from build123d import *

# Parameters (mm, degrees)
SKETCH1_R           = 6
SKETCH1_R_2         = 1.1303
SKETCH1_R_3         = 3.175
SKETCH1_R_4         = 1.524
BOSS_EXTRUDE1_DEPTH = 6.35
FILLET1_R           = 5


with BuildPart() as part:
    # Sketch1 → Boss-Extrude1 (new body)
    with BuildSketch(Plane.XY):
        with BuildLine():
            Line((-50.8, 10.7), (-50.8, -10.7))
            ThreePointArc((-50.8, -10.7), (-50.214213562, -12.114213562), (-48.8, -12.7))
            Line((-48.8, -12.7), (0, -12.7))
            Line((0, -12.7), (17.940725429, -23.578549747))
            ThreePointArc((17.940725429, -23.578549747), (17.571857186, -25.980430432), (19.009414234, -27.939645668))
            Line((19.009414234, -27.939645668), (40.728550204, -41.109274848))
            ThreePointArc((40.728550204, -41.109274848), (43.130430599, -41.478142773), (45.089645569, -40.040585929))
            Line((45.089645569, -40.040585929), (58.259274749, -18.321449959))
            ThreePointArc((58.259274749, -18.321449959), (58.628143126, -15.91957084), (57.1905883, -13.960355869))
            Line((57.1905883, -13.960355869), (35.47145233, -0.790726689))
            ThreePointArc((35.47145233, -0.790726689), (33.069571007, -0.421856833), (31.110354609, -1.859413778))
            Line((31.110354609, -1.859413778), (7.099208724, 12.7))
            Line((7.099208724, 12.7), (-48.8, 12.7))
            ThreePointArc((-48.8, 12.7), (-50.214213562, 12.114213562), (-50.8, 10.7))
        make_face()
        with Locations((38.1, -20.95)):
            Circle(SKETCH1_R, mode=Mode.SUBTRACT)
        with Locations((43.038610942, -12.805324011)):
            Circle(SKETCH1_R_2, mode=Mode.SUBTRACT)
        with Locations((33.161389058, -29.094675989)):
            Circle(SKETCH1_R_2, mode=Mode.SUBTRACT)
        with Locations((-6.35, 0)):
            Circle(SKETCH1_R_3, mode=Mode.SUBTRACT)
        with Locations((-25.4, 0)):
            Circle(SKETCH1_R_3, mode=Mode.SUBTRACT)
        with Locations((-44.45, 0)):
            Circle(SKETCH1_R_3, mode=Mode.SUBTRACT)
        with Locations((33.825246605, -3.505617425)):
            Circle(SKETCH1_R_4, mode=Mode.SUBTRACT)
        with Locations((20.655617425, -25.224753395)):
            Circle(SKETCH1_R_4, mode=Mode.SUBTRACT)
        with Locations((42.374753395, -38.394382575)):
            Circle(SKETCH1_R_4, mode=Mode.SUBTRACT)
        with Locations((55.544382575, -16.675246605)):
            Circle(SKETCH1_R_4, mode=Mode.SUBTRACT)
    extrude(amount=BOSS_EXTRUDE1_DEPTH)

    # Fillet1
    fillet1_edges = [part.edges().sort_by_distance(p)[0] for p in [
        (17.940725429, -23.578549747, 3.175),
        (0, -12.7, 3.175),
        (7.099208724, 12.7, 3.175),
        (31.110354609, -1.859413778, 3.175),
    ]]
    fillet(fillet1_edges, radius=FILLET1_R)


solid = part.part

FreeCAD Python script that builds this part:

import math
import FreeCAD as App
import Part
import Sketcher
Q = App.Units.Quantity


def edges_at(feature, points):
    """Names of the edges that pass closest to the given points."""
    edges = feature.Shape.Edges
    near = lambda p: min(range(len(edges)), key=lambda i: edges[i].distToShape(Part.Vertex(*p))[0])
    return sorted({f"Edge{near(p) + 1}" for p in points})

doc = App.newDocument("Part")
body = doc.addObject("PartDesign::Body", "Body")

sketch1 = body.newObject("Sketcher::SketchObject", "Sketch")
sketch1.AttachmentSupport = (doc.getObject("XY_Plane"), [""])
sketch1.MapMode = "FlatFace"
sketch1.addGeometry([
    Part.LineSegment(App.Vector(-50.8, 10.7, 0), App.Vector(-50.8, -10.7, 0)),
    Part.ArcOfCircle(Part.Circle(App.Vector(-48.8, -10.7, 0), App.Vector(0, 0, 1), 2), math.radians(-180), math.radians(-90)),
    Part.LineSegment(App.Vector(-48.8, -12.7, 0), App.Vector(0, -12.7, 0)),
    Part.LineSegment(App.Vector(0, -12.7, 0), App.Vector(17.9, -23.6, 0)),
    Part.ArcOfCircle(Part.Circle(App.Vector(20.7, -25.2, 0), App.Vector(0, 0, 1), 3.2), math.radians(149), math.radians(239)),
    Part.LineSegment(App.Vector(19, -27.9, 0), App.Vector(40.7, -41.1, 0)),
    Part.ArcOfCircle(Part.Circle(App.Vector(42.4, -38.4, 0), App.Vector(0, 0, 1), 3.2), math.radians(-121), math.radians(-31)),
    Part.LineSegment(App.Vector(45.1, -40, 0), App.Vector(58.3, -18.3, 0)),
    Part.ArcOfCircle(Part.Circle(App.Vector(55.5, -16.7, 0), App.Vector(0, 0, 1), 3.2), math.radians(-31), math.radians(59)),
    Part.LineSegment(App.Vector(57.2, -14, 0), App.Vector(35.5, -0.8, 0)),
    Part.ArcOfCircle(Part.Circle(App.Vector(33.8, -3.5, 0), App.Vector(0, 0, 1), 3.2), math.radians(59), math.radians(149)),
    Part.LineSegment(App.Vector(31.1, -1.9, 0), App.Vector(7.1, 12.7, 0)),
    Part.LineSegment(App.Vector(7.1, 12.7, 0), App.Vector(-48.8, 12.7, 0)),
    Part.ArcOfCircle(Part.Circle(App.Vector(-48.8, 10.7, 0), App.Vector(0, 0, 1), 2), math.radians(90), math.radians(180)),
    Part.Circle(App.Vector(42.4, -38.4, 0), App.Vector(0, 0, 1), 1.5),
    Part.Circle(App.Vector(20.7, -25.2, 0), App.Vector(0, 0, 1), 1.5),
    Part.Circle(App.Vector(33.2, -29.1, 0), App.Vector(0, 0, 1), 1.1),
    Part.Circle(App.Vector(38.1, -20.9, 0), App.Vector(0, 0, 1), 6),
    Part.Circle(App.Vector(-44.5, 0, 0), App.Vector(0, 0, 1), 3.2),
    Part.Circle(App.Vector(-25.4, 0, 0), App.Vector(0, 0, 1), 3.2),
    Part.Circle(App.Vector(-6.3, 0, 0), App.Vector(0, 0, 1), 3.2),
    Part.Circle(App.Vector(55.5, -16.7, 0), App.Vector(0, 0, 1), 1.5),
    Part.Circle(App.Vector(43, -12.8, 0), App.Vector(0, 0, 1), 1.1),
    Part.Circle(App.Vector(33.8, -3.5, 0), App.Vector(0, 0, 1), 1.5),
], False)
sketch1.addConstraint([
    Sketcher.Constraint("Tangent", 0, 2, 1, 1),
    Sketcher.Constraint("Tangent", 1, 2, 2, 1),
    Sketcher.Constraint("Coincident", 2, 2, 3, 1),
    Sketcher.Constraint("Coincident", 3, 2, 4, 1),
    Sketcher.Constraint("Tangent", 4, 2, 5, 1),
    Sketcher.Constraint("Tangent", 5, 2, 6, 1),
    Sketcher.Constraint("Tangent", 6, 2, 7, 1),
    Sketcher.Constraint("Tangent", 7, 2, 8, 1),
    Sketcher.Constraint("Tangent", 8, 2, 9, 1),
    Sketcher.Constraint("Tangent", 9, 2, 10, 1),
    Sketcher.Constraint("Coincident", 10, 2, 11, 1),
    Sketcher.Constraint("Coincident", 11, 2, 12, 1),
    Sketcher.Constraint("Tangent", 12, 2, 13, 1),
    Sketcher.Constraint("Tangent", 13, 2, 0, 1),
    Sketcher.Constraint("Vertical", 0),
    Sketcher.Constraint("Horizontal", 2),
    Sketcher.Constraint("Horizontal", 12),
    Sketcher.Constraint("Coincident", 14, 3, 6, 3),
    Sketcher.Constraint("Coincident", 15, 3, 4, 3),
    Sketcher.Constraint("Coincident", 21, 3, 8, 3),
    Sketcher.Constraint("Coincident", 23, 3, 10, 3),
    Sketcher.Constraint("Equal", 4, 6),
    Sketcher.Constraint("Equal", 6, 8),
    Sketcher.Constraint("Equal", 8, 10),
    Sketcher.Constraint("Equal", 1, 13),
    Sketcher.Constraint("Equal", 14, 15),
    Sketcher.Constraint("Equal", 10, 18),
    Sketcher.Constraint("Equal", 18, 19),
    Sketcher.Constraint("Equal", 19, 20),
    Sketcher.Constraint("Equal", 15, 21),
    Sketcher.Constraint("Equal", 16, 22),
    Sketcher.Constraint("Equal", 21, 23),
    Sketcher.Constraint("PointOnObject", 18, 3, -1),
    Sketcher.Constraint("PointOnObject", 19, 3, -1),
    Sketcher.Constraint("PointOnObject", 20, 3, -1),
    Sketcher.Constraint("PointOnObject", 2, 2, -2),
    Sketcher.Constraint("Parallel", 3, 5),
    Sketcher.Constraint("Perpendicular", 5, 7),
    Sketcher.Constraint("Perpendicular", 7, 9),
    Sketcher.Constraint("Parallel", 9, 11),
    Sketcher.Constraint("Equal", 5, 7),
    Sketcher.Constraint("Equal", 7, 9),
    Sketcher.Constraint("Diameter", 17, Q("12 mm")),
    Sketcher.Constraint("Radius", 1, Q("2 mm")),
    Sketcher.Constraint("Diameter", 18, Q("6.35 mm")),
    Sketcher.Constraint("Diameter", 14, Q("3.048 mm")),
    Sketcher.Constraint("DistanceX", 2, 1, 2, 2, Q("48.8 mm")),
    Sketcher.Constraint("DistanceY", 0, 2, 0, 1, Q("21.4 mm")),
    Sketcher.Constraint("Distance", 5, Q("25.4 mm")),
    Sketcher.Constraint("Diameter", 16, Q("2.2606 mm")),
    Sketcher.Constraint("DistanceY", 1, 3, -1, 1, Q("10.7 mm")),
    Sketcher.Constraint("DistanceX", -1, 1, 17, 3, Q("38.1 mm")),
    Sketcher.Constraint("DistanceX", 19, 3, -1, 1, Q("25.4 mm")),
    Sketcher.Constraint("DistanceX", 18, 3, 20, 3, Q("38.1 mm")),
    Sketcher.Constraint("DistanceY", 17, 3, -1, 1, Q("20.95 mm")),
    Sketcher.Constraint("DistanceX", 18, 3, -1, 1, Q("44.45 mm")),
    Sketcher.Constraint("DistanceX", 12, 2, 12, 1, Q("55.899209 mm")),
    Sketcher.Constraint("DistanceY", 5, 2, 16, 3, Q("12.014599 mm")),
    Sketcher.Constraint("Distance", 3, Q("20.981241 mm")),
    Sketcher.Constraint("Distance", 11, Q("28.08045 mm")),
    Sketcher.Constraint("DistanceX", -1, 1, 16, 3, Q("33.161389 mm")),
    Sketcher.Constraint("DistanceX", -1, 1, 22, 3, Q("43.038611 mm")),
    Sketcher.Constraint("DistanceX", -1, 1, 5, 2, Q("40.72855 mm")),
    Sketcher.Constraint("DistanceY", 16, 3, 22, 3, Q("16.289352 mm")),
])
pad1 = body.newObject("PartDesign::Pad", "Pad")
pad1.Profile = sketch1
pad1.Length = 6.35
doc.recompute()

fillet = body.newObject("PartDesign::Fillet", "Fillet")
fillet.Base = (pad1, edges_at(pad1, [
    (17.941, -23.579, 3.175),
    (0, -12.7, 3.175),
    (7.099, 12.7, 3.175),
    (31.11, -1.859, 3.175),
]))
fillet.Radius = 5

doc.recompute()
